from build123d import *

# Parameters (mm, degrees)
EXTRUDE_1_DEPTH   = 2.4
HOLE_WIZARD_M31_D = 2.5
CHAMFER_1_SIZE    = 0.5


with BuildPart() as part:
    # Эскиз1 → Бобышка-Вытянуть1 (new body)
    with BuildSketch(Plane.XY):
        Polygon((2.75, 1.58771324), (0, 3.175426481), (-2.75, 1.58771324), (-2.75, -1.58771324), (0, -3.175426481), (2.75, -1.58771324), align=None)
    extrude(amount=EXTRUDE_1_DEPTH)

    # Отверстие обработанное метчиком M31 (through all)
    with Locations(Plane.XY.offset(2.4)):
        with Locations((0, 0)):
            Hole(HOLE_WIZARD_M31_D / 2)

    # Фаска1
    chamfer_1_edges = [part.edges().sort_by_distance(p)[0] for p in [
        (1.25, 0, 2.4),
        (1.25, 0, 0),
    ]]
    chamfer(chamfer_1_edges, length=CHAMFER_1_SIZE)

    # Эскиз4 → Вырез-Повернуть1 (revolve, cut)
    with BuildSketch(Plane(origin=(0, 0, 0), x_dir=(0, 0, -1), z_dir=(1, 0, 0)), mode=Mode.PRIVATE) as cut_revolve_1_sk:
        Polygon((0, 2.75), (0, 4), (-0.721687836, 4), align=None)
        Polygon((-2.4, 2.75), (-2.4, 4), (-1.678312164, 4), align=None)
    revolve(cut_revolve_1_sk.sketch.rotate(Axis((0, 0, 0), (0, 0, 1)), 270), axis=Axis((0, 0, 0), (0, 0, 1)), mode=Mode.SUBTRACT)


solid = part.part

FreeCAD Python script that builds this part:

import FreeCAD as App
import Part
import Sketcher
from FreeCAD import Vector
Q = App.Units.Quantity


def edges_at(feature, points):
    """Names of the edges that pass closest to the given points."""
    edges = feature.Shape.Edges
    near = lambda p: min(range(len(edges)), key=lambda i: edges[i].distToShape(Part.Vertex(*p))[0])
    return sorted({f"Edge{near(p) + 1}" for p in points})


def add_polygon(sketch, points):
    """Adds a closed chain of lines whose ends are joined by coincident constraints."""
    first, n = sketch.GeometryCount, len(points)
    for a, b in zip(points, points[1:] + points[:1]):
        sketch.addGeometry(Part.LineSegment(App.Vector(*a, 0), App.Vector(*b, 0)), False)
    for i in range(n):
        sketch.addConstraint(Sketcher.Constraint("Coincident", first + i, 2, first + (i + 1) % n, 1))

doc = App.newDocument("Part")
body = doc.addObject("PartDesign::Body", "Body")

sketch1 = body.newObject("Sketcher::SketchObject", "Sketch")
sketch1.AttachmentSupport = (doc.getObject("XY_Plane"), [""])
sketch1.MapMode = "FlatFace"
add_polygon(sketch1, [(2.75, 1.587713), (0, 3.175426), (-2.75, 1.587713), (-2.75, -1.587713), (0, -3.175426), (2.75, -1.587713)])
sketch1.addConstraint([
    Sketcher.Constraint("Vertical", 2),
    Sketcher.Constraint("Vertical", 5),
    Sketcher.Constraint("Symmetric", 0, 2, 3, 2, -1, 1),
    Sketcher.Constraint("Symmetric", 1, 2, 4, 2, -1, 1),
    Sketcher.Constraint("PointOnObject", 0, 2, -2),
    Sketcher.Constraint("Parallel", 0, 3),
    Sketcher.Constraint("Horizontal", 2, 2, 4, 2),
    Sketcher.Constraint("Angle", 0, Q("150 deg")),
    Sketcher.Constraint("DistanceX", 2, 2, 4, 2, Q("5.5 mm")),
    Sketcher.Constraint("DistanceY", 2, 2, 2, 1, Q("3.175426 mm")),
])
pad1 = body.newObject("PartDesign::Pad", "Pad")
pad1.Profile = sketch1
pad1.Length = 2.4

sketch2 = body.newObject("Sketcher::SketchObject", "Sketch001")
sketch2.AttachmentSupport = (doc.getObject("XY_Plane"), [""])
sketch2.MapMode = "FlatFace"
sketch2.AttachmentOffset = App.Placement(Vector(0, 0, 2.4), App.Rotation())
sketch2.addGeometry(Part.Circle(Vector(0, 0, 0), Vector(0, 0, 1), 1.25), False)
sketch2.addConstraint([
    Sketcher.Constraint("Coincident", 0, 3, -1, 1),
    Sketcher.Constraint("Diameter", 0, Q("2.5 mm")),
])
doc.recompute()
hole = body.newObject("PartDesign::Hole", "Hole")
hole.Profile = sketch2
hole.ThreadType = "None"
hole.Diameter = 2.5
hole.DepthType = "ThroughAll"
doc.recompute()

chamfer = body.newObject("PartDesign::Chamfer", "Chamfer")
chamfer.Base = (hole, edges_at(hole, [(1.25, 0, 2.4), (1.25, 0, 0)]))
chamfer.Size = 0.5

sketch3 = body.newObject("Sketcher::SketchObject", "Sketch002")
sketch3.AttachmentSupport = (doc.getObject("YZ_Plane"), [""])
sketch3.MapMode = "FlatFace"
add_polygon(sketch3, [(2.75, 0), (4, 0), (4, 0.721688)])
add_polygon(sketch3, [(4, 2.4), (2.75, 2.4), (4, 1.678312)])
sketch3.addConstraint([
    Sketcher.Constraint("Horizontal", 0),
    Sketcher.Constraint("Vertical", 1),
    Sketcher.Constraint("Horizontal", 3),
    Sketcher.Constraint("Vertical", 5),
    Sketcher.Constraint("PointOnObject", 0, 2, -1),
    Sketcher.Constraint("Vertical", 2, 2, 3, 2),
    Sketcher.Constraint("Vertical", 1, 2, 4, 2),
    Sketcher.Constraint("Equal", 1, 5),
    Sketcher.Constraint("Angle", 2, Q("-150 deg")),
    Sketcher.Constraint("DistanceX", -1, 1, 0, 2, Q("4 mm")),
    Sketcher.Constraint("DistanceX", 0, 1, 0, 2, Q("1.25 mm")),
    Sketcher.Constraint("DistanceY", -1, 1, 3, 2, Q("2.4 mm")),
])
groove = body.newObject("PartDesign::Groove", "Groove")
groove.Profile = sketch3
groove.ReferenceAxis = (sketch3, ["V_Axis"])
groove.Angle = 360

doc.recompute()
